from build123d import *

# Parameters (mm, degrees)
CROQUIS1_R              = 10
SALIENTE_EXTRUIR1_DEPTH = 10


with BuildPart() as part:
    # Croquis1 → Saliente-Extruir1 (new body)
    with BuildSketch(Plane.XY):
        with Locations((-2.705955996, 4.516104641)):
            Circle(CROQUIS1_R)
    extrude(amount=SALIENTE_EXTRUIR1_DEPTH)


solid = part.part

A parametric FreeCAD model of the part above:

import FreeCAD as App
import Part
import Sketcher
Q = App.Units.Quantity

doc = App.newDocument("Part")
body = doc.addObject("PartDesign::Body", "Body")

sketch1 = body.newObject("Sketcher::SketchObject", "Sketch")
sketch1.AttachmentSupport = (doc.getObject("XY_Plane"), [""])
sketch1.MapMode = "FlatFace"
sketch1.addGeometry(Part.Circle(App.Vector(-3, 5, 0), App.Vector(0, 0, 1), 10), False)
sketch1.addConstraint([
    Sketcher.Constraint("Diameter", 0, Q("20 mm")),
    Sketcher.Constraint("DistanceX", 0, 3, -1, 1, Q("2.705956 mm")),
    Sketcher.Constraint("DistanceY", -1, 1, 0, 3, Q("4.516105 mm")),
])
pad1 = body.newObject("PartDesign::Pad", "Pad")
pad1.Profile = sketch1
pad1.Length = 10

doc.recompute()
